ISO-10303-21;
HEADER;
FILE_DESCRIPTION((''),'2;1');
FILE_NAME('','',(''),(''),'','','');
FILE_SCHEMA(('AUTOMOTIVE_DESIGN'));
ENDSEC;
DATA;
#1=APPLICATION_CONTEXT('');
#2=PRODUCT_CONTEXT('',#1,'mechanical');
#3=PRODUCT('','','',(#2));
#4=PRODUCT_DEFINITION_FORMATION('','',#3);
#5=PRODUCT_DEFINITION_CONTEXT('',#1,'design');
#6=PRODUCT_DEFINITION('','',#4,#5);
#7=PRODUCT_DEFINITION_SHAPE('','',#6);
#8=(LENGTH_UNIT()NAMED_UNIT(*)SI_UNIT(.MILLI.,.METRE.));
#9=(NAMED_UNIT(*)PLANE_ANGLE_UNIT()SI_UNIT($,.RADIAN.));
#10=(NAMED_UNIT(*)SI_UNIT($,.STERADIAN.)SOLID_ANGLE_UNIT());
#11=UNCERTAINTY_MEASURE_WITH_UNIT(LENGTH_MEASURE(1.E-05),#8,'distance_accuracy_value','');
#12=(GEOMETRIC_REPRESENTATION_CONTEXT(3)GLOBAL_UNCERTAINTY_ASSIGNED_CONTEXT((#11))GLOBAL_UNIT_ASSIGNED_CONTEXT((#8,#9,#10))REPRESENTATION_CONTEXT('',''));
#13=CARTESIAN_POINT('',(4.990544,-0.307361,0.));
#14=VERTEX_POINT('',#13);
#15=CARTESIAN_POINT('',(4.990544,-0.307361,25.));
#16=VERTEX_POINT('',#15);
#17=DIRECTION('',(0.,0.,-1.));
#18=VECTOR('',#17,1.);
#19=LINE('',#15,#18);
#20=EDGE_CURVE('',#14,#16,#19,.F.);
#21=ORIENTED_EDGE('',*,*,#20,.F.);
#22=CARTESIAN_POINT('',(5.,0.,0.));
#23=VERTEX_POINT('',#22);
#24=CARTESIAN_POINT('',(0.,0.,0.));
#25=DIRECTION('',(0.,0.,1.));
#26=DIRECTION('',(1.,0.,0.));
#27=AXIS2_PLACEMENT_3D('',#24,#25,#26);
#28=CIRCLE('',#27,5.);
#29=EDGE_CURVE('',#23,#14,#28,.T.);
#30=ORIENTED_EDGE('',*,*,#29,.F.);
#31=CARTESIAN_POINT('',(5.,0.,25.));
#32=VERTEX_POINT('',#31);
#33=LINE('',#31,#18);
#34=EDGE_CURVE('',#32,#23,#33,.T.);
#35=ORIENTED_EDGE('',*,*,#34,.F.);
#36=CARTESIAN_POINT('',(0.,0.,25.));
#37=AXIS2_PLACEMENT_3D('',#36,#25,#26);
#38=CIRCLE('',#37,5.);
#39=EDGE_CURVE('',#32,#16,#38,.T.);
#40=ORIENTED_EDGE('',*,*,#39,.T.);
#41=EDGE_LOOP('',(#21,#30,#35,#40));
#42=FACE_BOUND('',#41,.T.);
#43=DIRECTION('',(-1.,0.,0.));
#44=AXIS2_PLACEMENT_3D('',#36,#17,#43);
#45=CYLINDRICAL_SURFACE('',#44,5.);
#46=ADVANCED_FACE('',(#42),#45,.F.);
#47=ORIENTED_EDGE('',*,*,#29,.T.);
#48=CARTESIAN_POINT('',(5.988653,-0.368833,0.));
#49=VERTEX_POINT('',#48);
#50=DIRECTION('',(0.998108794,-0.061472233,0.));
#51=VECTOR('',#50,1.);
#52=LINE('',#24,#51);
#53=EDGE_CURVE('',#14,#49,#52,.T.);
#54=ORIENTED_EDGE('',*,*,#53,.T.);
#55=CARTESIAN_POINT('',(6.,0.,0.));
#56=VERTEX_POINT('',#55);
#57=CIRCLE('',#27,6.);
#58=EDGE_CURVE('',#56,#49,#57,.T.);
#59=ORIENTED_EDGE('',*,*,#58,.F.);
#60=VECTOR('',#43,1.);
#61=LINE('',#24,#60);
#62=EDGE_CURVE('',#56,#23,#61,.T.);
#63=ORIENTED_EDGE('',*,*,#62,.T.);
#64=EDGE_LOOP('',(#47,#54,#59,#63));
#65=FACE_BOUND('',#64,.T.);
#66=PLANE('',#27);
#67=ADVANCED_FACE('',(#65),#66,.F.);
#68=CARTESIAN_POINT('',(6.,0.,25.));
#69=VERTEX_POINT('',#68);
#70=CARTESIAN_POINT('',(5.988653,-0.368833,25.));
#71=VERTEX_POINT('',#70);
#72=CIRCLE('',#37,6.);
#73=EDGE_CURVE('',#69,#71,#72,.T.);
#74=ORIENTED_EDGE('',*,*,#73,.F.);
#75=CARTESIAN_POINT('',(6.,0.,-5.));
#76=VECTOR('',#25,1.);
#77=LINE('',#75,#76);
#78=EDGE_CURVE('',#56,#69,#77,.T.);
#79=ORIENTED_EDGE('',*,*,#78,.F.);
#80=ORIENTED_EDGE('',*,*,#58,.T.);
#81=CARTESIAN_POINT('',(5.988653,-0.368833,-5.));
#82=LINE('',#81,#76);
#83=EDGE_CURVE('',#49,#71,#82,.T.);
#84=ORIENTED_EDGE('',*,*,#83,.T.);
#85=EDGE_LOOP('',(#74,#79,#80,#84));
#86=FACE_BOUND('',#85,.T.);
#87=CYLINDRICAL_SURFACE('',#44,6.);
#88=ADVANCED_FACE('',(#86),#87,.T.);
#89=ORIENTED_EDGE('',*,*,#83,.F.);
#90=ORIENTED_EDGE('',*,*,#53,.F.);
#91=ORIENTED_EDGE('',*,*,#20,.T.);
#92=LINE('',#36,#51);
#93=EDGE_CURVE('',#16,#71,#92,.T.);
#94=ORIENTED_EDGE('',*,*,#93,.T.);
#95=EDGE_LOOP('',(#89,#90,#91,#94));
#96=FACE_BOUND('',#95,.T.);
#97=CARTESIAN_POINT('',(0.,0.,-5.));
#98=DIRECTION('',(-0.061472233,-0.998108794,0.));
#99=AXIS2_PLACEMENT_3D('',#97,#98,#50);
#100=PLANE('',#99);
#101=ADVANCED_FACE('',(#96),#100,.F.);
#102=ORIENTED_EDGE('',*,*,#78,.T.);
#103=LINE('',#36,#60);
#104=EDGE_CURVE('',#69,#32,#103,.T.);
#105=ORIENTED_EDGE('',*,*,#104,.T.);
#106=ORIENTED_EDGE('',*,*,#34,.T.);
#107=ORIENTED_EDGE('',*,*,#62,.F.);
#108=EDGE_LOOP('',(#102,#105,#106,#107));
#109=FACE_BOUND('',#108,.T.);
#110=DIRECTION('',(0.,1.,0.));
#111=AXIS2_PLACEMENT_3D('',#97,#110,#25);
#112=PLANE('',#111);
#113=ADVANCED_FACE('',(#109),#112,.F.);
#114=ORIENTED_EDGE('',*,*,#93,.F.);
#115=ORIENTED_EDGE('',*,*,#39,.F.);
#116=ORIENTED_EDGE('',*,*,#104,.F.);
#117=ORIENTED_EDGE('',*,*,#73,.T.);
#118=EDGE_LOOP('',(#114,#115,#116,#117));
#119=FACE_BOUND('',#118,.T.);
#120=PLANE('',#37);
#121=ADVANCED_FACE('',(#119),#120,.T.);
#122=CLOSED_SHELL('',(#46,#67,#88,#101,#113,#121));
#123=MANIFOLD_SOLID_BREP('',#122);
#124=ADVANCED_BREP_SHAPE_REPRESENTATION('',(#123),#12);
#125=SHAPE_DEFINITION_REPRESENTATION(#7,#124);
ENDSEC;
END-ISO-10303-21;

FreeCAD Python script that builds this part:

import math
import FreeCAD as App
import Part
import Sketcher

V = App.Vector

doc = App.newDocument("Part")
params = doc.addObject("Spreadsheet::Sheet", "Params")
for row, (alias, value) in enumerate([
    ("sketch1_diameter", "12 mm"),
    ("sketch1_diameter2", "10 mm"),
    ("pad1_length", "25 mm"),
    ("sketch2_radius", "6 mm"),
    ("pocket1_length", "30 mm"),
], start=1):
    params.set(f"A{row}", alias)
    params.set(f"B{row}", "=" + value)
    params.setAlias(f"B{row}", alias)

body = doc.addObject("PartDesign::Body", "Body")

# Sketch on XY plane
sketch1 = body.newObject("Sketcher::SketchObject", "Sketch")
sketch1.AttachmentSupport = (doc.getObject("XY_Plane"), [""])
sketch1.MapMode = "FlatFace"
sketch1.addGeometry(Part.Circle(V(0, 0, 0), V(0, 0, 1), 6), False)
sketch1.addGeometry(Part.Circle(V(0, 0, 0), V(0, 0, 1), 5), False)
sketch1.addConstraint(Sketcher.Constraint("Coincident", 0, 3, -1, 1))
sketch1.addConstraint(Sketcher.Constraint("Coincident", 1, 3, -1, 1))
sketch1.addConstraint(Sketcher.Constraint("Diameter", 0, 12.0))
sketch1.addConstraint(Sketcher.Constraint("Diameter", 1, 10.0))
sketch1.setExpression("Constraints[2]", "Params.sketch1_diameter")
sketch1.setExpression("Constraints[3]", "Params.sketch1_diameter2")
pad1 = body.newObject("PartDesign::Pad", "Pad")
pad1.Profile = sketch1
pad1.setExpression("Length", "Params.pad1_length")

# Sketch on XY plane
sketch2 = body.newObject("Sketcher::SketchObject", "Sketch001")
sketch2.AttachmentSupport = (doc.getObject("XY_Plane"), [""])
sketch2.MapMode = "FlatFace"
sketch2.AttachmentOffset = App.Placement(V(0, 0, -5), App.Rotation())
sketch2.addGeometry(Part.LineSegment(V(6, 0, 0), V(0, 0, 0)), False)
sketch2.addGeometry(Part.LineSegment(V(0, 0, 0), V(5.99, -0.37, 0)), False)
sketch2.addGeometry(Part.ArcOfCircle(Part.Circle(V(0, 0, 0), V(0, 0, 1), 6), math.radians(-3.52), math.radians(0)), False)
sketch2.addConstraint(Sketcher.Constraint("Coincident", 0, 2, 1, 1))
sketch2.addConstraint(Sketcher.Constraint("Coincident", 1, 2, 2, 1))
sketch2.addConstraint(Sketcher.Constraint("Coincident", 2, 2, 0, 1))
sketch2.addConstraint(Sketcher.Constraint("Horizontal", 0))
sketch2.addConstraint(Sketcher.Constraint("Coincident", 2, 3, -1, 1))
sketch2.addConstraint(Sketcher.Constraint("Coincident", 0, 2, -1, 1))
sketch2.addConstraint(Sketcher.Constraint("Radius", 2, 6.0))
sketch2.addConstraint(Sketcher.Constraint("DistanceX", -1, 1, 1, 2, 5.988653))
sketch2.setExpression("Constraints[6]", "Params.sketch2_radius")
pocket1 = body.newObject("PartDesign::Pocket", "Pocket")
pocket1.Profile = sketch2
pocket1.setExpression("Length", "Params.pocket1_length")
pocket1.Reversed = True

doc.recompute()
